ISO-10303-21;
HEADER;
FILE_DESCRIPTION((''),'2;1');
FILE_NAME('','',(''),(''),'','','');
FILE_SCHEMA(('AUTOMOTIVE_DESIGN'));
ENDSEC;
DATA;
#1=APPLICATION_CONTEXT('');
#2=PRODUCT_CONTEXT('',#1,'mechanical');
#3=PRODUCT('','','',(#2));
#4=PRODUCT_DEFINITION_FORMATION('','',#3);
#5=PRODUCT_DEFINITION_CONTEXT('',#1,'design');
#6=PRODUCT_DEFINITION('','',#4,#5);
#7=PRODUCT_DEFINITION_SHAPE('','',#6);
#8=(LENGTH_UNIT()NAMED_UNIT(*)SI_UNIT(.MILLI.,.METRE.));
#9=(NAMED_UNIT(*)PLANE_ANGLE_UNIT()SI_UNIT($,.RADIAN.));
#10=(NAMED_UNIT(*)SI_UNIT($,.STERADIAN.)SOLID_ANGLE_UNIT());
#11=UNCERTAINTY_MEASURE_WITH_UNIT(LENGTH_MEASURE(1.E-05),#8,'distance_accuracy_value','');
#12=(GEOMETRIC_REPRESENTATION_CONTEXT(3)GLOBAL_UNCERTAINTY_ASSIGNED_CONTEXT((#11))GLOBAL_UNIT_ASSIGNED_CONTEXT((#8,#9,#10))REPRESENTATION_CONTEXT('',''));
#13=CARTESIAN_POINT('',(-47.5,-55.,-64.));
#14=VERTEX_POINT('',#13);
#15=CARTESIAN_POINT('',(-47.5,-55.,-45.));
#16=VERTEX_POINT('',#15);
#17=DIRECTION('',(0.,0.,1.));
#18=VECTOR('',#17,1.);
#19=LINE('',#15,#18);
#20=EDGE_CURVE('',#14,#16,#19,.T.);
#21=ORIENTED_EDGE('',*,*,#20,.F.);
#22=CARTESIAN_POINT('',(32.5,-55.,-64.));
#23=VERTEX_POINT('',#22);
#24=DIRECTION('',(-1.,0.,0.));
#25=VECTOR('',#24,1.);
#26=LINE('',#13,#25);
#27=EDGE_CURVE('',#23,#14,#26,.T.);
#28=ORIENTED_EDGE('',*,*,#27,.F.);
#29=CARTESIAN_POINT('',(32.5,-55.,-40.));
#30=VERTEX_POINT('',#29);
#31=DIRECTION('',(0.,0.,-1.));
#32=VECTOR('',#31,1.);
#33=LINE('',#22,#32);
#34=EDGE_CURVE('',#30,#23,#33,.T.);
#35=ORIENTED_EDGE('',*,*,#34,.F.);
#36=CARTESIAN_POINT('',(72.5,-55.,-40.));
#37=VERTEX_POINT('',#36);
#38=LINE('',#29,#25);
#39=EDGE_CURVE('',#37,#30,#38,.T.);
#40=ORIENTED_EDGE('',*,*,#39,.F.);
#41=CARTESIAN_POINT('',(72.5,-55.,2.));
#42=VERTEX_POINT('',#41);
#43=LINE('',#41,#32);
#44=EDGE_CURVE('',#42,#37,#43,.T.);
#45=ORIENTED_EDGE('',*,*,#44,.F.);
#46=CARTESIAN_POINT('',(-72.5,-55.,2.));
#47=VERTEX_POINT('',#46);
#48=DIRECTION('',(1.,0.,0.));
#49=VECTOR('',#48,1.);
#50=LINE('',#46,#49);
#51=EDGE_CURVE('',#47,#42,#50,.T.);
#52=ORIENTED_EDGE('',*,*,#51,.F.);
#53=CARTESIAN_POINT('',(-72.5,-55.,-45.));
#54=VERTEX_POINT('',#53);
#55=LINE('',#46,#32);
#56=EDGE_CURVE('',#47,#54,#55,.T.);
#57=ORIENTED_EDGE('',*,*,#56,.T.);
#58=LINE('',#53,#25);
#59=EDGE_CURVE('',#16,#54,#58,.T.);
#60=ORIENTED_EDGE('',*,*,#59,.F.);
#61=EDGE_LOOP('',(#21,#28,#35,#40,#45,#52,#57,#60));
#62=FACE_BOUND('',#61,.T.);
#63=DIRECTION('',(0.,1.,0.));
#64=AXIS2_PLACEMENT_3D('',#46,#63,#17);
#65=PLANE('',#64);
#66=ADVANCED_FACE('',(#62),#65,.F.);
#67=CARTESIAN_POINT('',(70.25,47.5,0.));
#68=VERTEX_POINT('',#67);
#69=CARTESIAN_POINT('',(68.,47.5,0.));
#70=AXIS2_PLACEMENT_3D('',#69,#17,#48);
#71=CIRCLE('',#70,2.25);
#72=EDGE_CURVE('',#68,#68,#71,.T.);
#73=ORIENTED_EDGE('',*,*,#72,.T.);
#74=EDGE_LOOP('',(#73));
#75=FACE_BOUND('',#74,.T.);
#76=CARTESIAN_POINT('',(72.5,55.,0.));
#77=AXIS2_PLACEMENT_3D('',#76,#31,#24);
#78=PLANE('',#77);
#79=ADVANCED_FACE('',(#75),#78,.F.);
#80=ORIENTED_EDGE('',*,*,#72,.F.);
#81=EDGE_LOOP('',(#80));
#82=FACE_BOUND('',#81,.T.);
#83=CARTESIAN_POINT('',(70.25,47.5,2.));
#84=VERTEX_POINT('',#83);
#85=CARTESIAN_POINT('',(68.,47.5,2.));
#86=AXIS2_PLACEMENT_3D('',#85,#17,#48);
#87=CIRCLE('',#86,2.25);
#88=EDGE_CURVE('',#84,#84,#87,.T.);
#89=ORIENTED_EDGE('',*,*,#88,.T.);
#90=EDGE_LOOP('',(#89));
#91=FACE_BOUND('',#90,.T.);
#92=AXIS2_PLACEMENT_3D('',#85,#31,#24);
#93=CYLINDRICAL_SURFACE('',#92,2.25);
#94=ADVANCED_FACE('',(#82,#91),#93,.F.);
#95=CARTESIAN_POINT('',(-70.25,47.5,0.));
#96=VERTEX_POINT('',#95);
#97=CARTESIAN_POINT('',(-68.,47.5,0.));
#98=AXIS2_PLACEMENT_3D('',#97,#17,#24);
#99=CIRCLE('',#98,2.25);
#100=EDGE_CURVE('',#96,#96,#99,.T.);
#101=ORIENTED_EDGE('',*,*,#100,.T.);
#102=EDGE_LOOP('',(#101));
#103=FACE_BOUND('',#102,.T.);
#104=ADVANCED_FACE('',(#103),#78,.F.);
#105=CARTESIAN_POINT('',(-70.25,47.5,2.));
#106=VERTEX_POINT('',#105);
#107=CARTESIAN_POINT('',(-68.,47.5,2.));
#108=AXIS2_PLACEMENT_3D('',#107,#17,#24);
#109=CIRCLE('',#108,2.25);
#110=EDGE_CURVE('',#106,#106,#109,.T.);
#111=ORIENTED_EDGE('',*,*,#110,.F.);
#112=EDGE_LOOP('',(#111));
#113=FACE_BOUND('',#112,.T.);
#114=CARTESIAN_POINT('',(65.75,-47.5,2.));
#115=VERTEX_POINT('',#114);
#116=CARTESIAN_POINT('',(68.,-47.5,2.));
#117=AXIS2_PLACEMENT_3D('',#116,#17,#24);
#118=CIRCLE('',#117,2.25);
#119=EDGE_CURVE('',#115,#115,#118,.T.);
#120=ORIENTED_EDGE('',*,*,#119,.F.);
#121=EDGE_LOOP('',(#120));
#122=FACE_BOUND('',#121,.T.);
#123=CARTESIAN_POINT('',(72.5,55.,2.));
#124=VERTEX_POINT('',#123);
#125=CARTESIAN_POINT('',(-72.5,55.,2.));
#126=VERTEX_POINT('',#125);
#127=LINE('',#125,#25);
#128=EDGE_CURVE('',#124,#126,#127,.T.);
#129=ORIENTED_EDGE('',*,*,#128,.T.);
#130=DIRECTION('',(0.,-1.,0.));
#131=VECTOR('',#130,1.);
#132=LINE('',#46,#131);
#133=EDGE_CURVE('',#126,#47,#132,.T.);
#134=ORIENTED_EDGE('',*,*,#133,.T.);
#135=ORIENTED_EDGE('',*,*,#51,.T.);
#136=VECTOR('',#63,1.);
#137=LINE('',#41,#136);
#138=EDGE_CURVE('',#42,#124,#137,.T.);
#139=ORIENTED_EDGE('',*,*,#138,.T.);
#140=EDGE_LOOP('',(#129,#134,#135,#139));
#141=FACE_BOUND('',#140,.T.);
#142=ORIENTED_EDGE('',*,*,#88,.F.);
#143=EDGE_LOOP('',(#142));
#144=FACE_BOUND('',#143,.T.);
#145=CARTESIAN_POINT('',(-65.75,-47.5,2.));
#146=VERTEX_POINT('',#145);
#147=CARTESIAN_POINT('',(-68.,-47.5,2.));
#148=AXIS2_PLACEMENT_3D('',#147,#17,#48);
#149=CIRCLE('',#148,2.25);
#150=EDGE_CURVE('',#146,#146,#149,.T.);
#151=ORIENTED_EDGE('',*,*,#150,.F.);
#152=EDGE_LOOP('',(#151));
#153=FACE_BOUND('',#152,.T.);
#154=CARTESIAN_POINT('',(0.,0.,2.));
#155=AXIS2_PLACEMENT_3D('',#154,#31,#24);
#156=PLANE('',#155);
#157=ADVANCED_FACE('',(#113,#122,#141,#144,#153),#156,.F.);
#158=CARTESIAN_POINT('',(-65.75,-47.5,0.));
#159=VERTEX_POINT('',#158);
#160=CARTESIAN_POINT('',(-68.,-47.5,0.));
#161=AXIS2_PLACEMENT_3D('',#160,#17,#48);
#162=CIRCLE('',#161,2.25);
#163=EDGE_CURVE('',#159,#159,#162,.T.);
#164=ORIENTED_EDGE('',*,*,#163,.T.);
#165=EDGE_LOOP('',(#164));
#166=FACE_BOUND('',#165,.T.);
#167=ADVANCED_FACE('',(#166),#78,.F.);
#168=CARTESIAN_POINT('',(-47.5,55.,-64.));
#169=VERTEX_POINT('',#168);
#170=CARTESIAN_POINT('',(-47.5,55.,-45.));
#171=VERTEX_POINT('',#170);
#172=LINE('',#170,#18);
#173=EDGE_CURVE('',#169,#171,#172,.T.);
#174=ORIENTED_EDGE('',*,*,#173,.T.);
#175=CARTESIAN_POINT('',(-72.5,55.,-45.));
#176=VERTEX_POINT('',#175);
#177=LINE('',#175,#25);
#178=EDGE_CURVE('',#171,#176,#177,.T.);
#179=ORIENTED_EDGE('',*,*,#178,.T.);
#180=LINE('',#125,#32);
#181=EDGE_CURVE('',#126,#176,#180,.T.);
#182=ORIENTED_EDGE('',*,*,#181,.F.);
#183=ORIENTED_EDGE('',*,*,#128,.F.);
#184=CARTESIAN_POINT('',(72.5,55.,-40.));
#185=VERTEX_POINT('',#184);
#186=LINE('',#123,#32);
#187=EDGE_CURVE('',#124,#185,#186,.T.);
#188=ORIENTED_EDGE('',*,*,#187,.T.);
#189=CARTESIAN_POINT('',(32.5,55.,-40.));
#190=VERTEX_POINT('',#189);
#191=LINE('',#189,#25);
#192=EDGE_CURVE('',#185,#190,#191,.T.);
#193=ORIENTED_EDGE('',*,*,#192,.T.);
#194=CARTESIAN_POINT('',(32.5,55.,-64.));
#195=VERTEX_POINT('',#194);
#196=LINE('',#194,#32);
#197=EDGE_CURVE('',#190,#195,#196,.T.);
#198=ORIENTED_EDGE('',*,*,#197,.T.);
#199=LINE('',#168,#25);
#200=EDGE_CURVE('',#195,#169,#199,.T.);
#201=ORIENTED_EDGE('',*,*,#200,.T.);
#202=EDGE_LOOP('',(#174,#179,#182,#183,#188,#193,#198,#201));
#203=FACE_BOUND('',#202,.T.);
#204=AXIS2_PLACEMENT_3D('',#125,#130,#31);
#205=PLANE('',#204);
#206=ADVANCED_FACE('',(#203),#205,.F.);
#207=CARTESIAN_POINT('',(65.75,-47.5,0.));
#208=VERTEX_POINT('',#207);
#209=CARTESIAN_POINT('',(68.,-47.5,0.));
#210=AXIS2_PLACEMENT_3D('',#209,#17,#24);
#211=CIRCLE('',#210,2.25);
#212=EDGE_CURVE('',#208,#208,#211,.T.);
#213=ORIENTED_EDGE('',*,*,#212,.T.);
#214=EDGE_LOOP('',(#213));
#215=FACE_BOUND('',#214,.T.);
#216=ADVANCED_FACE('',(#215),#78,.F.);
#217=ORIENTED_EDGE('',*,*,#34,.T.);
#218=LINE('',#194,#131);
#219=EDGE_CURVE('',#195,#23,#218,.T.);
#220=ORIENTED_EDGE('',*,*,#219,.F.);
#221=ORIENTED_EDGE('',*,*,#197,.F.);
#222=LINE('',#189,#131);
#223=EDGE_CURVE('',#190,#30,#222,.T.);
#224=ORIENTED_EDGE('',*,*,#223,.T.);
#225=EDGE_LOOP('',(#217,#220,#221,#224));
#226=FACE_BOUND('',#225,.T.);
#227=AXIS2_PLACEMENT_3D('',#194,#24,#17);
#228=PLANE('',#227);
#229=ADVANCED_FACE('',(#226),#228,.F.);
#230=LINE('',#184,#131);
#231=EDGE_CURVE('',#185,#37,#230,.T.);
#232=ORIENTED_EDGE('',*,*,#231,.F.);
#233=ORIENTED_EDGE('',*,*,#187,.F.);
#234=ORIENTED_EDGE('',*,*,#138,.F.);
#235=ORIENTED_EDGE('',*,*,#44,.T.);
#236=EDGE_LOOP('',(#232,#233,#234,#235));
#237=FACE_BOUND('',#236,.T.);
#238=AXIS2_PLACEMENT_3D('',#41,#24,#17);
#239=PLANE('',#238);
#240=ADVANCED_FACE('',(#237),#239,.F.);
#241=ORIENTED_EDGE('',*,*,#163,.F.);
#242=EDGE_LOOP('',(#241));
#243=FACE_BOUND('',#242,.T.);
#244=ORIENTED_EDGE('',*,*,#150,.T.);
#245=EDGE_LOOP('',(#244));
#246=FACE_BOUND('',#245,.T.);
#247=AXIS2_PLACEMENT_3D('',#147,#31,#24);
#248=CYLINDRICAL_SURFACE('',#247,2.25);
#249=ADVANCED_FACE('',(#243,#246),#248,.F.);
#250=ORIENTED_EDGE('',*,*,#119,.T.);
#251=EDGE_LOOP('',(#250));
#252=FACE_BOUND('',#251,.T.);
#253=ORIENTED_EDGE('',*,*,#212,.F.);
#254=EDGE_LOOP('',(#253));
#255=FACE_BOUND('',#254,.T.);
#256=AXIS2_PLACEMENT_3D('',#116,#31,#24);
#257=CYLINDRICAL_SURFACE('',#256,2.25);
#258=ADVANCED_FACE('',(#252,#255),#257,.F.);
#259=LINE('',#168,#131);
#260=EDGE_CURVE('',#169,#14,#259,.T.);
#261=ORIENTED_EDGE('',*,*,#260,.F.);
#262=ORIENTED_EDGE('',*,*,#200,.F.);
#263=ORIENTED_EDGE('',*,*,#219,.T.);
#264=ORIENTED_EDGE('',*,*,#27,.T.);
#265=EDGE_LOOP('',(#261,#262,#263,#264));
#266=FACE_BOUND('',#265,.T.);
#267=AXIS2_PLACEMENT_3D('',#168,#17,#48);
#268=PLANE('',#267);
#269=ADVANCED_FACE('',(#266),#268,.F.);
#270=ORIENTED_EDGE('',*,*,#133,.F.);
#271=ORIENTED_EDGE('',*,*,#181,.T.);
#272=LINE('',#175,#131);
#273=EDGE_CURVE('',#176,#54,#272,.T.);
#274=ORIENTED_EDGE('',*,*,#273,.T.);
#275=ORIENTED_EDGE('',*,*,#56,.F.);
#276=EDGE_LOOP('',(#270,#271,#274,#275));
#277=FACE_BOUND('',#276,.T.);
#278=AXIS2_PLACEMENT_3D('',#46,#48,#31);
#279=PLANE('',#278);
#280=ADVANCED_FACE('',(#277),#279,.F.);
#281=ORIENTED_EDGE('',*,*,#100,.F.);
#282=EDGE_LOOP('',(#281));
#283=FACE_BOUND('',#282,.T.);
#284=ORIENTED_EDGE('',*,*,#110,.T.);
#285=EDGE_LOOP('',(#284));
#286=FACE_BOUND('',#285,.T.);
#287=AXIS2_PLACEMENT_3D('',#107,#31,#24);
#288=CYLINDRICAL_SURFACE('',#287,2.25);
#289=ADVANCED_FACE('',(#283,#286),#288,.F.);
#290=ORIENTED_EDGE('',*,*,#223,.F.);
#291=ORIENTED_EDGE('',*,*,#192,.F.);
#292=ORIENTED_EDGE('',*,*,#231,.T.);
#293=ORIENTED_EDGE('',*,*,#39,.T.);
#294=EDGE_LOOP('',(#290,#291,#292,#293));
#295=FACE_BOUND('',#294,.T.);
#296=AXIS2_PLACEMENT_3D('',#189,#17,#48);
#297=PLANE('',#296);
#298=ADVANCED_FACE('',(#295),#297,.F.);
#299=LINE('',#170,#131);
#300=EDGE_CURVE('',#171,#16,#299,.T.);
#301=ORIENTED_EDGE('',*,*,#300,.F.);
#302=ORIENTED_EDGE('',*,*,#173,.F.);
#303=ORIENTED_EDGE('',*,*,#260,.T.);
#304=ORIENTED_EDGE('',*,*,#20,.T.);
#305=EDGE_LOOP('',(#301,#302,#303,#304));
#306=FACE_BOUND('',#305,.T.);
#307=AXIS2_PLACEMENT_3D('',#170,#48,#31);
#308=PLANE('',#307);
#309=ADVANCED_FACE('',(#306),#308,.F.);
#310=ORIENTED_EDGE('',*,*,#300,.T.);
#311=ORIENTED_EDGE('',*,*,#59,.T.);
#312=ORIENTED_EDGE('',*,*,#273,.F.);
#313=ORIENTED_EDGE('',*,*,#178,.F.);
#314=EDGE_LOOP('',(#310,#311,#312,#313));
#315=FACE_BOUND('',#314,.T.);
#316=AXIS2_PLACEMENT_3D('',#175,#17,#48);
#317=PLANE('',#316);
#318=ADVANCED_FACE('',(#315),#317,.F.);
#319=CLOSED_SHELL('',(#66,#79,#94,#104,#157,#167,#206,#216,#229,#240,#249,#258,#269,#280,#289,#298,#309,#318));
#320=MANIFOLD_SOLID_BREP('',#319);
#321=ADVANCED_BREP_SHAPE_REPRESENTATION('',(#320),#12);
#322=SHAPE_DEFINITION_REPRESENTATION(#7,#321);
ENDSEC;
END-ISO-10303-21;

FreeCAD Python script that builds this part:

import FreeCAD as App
import Part
import Sketcher

doc = App.newDocument("Part")
params = doc.addObject("Spreadsheet::Sheet", "Params")
for row, (alias, value) in enumerate([
    ("sketch1_diameter", "4.5 mm"),
    ("sketch1_width", "145 mm"),
    ("sketch1_height", "110 mm"),
    ("pad1_length", "2 mm"),
    ("sketch2_width", "145 mm"),
    ("sketch2_width2", "40 mm"),
    ("sketch2_width3", "80 mm"),
    ("sketch2_height", "45 mm"),
    ("sketch2_height2", "24 mm"),
    ("pad2_length", "55 mm"),
    ("pad2_length2", "55 mm"),
], start=1):
    params.set(f"A{row}", alias)
    params.set(f"B{row}", "=" + value)
    params.setAlias(f"B{row}", alias)

body = doc.addObject("PartDesign::Body", "Body")

# Sketch on XY plane
sketch1 = doc.addObject("Sketcher::SketchObject", "Sketch")
body.addObject(sketch1)
sketch1.AttachmentSupport = (doc.XY_Plane, [""])
sketch1.MapMode = "FlatFace"
sketch1.addGeometry([
    Part.LineSegment(App.Vector(-72.5, 55, 0), App.Vector(-72.5, -55, 0)),  # 0
    Part.LineSegment(App.Vector(-72.5, -55, 0), App.Vector(72.5, -55, 0)),  # 1
    Part.LineSegment(App.Vector(72.5, -55, 0), App.Vector(72.5, 55, 0)),  # 2
    Part.LineSegment(App.Vector(72.5, 55, 0), App.Vector(-72.5, 55, 0)),  # 3
    Part.Circle(App.Vector(-68, -47.5, 0), App.Vector(0, 0, 1), 2.25),  # 4
    Part.Circle(App.Vector(68, -47.5, 0), App.Vector(0, 0, 1), 2.25),  # 5
    Part.Circle(App.Vector(-68, 47.5, 0), App.Vector(0, 0, 1), 2.25),  # 6
    Part.Circle(App.Vector(68, 47.5, 0), App.Vector(0, 0, 1), 2.25),  # 7
], False)
sketch1.addConstraint([
    Sketcher.Constraint("Coincident", 0, 2, 1, 1),
    Sketcher.Constraint("Coincident", 1, 2, 2, 1),
    Sketcher.Constraint("Coincident", 2, 2, 3, 1),
    Sketcher.Constraint("Coincident", 3, 2, 0, 1),
    Sketcher.Constraint("Vertical", 0),
    Sketcher.Constraint("Horizontal", 1),
    Sketcher.Constraint("Vertical", 2),
    Sketcher.Constraint("Horizontal", 3),
    Sketcher.Constraint("Equal", 4, 5),
    Sketcher.Constraint("Equal", 5, 6),
    Sketcher.Constraint("Equal", 6, 7),
    Sketcher.Constraint("Symmetric", 5, 3, 6, 3, -1, 1),
    Sketcher.Constraint("Symmetric", 4, 3, 7, 3, -1, 1),
    Sketcher.Constraint("Symmetric", 0, 2, 2, 2, -1, 1),
    Sketcher.Constraint("Symmetric", 4, 3, 5, 3, -2),
    Sketcher.Constraint("Diameter", 4, 4.5),
    Sketcher.Constraint("DistanceX", 1, 1, 1, 2, 145.0),
    Sketcher.Constraint("DistanceY", 0, 2, 0, 1, 110.0),
    Sketcher.Constraint("DistanceX", 4, 3, -1, 1, 68.0),
    Sketcher.Constraint("DistanceY", 4, 3, 6, 3, 95.0),
])
sketch1.setExpression("Constraints[15]", "Params.sketch1_diameter")
sketch1.setExpression("Constraints[16]", "Params.sketch1_width")
sketch1.setExpression("Constraints[17]", "Params.sketch1_height")
pad1 = doc.addObject("PartDesign::Pad", "Pad")
body.addObject(pad1)
pad1.Profile = sketch1
pad1.setExpression("Length", "Params.pad1_length")

# Sketch on XZ plane
sketch2 = doc.addObject("Sketcher::SketchObject", "Sketch001")
body.addObject(sketch2)
sketch2.AttachmentSupport = (doc.XZ_Plane, [""])
sketch2.MapMode = "FlatFace"
sketch2.addGeometry([
    Part.LineSegment(App.Vector(-72.5, -45, 0), App.Vector(-72.5, 0, 0)),  # 0
    Part.LineSegment(App.Vector(-72.5, 0, 0), App.Vector(72.5, 0, 0)),  # 1
    Part.LineSegment(App.Vector(72.5, 0, 0), App.Vector(72.5, -40, 0)),  # 2
    Part.LineSegment(App.Vector(72.5, -40, 0), App.Vector(32.5, -40, 0)),  # 3
    Part.LineSegment(App.Vector(32.5, -40, 0), App.Vector(32.5, -64, 0)),  # 4
    Part.LineSegment(App.Vector(32.5, -64, 0), App.Vector(-47.5, -64, 0)),  # 5
    Part.LineSegment(App.Vector(-47.5, -64, 0), App.Vector(-47.5, -45, 0)),  # 6
    Part.LineSegment(App.Vector(-47.5, -45, 0), App.Vector(-72.5, -45, 0)),  # 7
], False)
sketch2.addConstraint([
    Sketcher.Constraint("Coincident", 0, 2, 1, 1),
    Sketcher.Constraint("Coincident", 1, 2, 2, 1),
    Sketcher.Constraint("Coincident", 2, 2, 3, 1),
    Sketcher.Constraint("Coincident", 3, 2, 4, 1),
    Sketcher.Constraint("Coincident", 4, 2, 5, 1),
    Sketcher.Constraint("Coincident", 5, 2, 6, 1),
    Sketcher.Constraint("Coincident", 6, 2, 7, 1),
    Sketcher.Constraint("Coincident", 7, 2, 0, 1),
    Sketcher.Constraint("Vertical", 0),
    Sketcher.Constraint("Horizontal", 1),
    Sketcher.Constraint("Vertical", 2),
    Sketcher.Constraint("Horizontal", 3),
    Sketcher.Constraint("Vertical", 4),
    Sketcher.Constraint("Horizontal", 5),
    Sketcher.Constraint("Vertical", 6),
    Sketcher.Constraint("Horizontal", 7),
    Sketcher.Constraint("Symmetric", 0, 2, 1, 2, -1, 1),
    Sketcher.Constraint("Equal", 3, 2),
    Sketcher.Constraint("DistanceX", 1, 1, 1, 2, 145.0),
    Sketcher.Constraint("DistanceX", 3, 2, 3, 1, 40.0),
    Sketcher.Constraint("DistanceX", 5, 2, 5, 1, 80.0),
    Sketcher.Constraint("DistanceY", 0, 1, 0, 2, 45.0),
    Sketcher.Constraint("DistanceY", 4, 2, 4, 1, 24.0),
])
sketch2.setExpression("Constraints[18]", "Params.sketch2_width")
sketch2.setExpression("Constraints[19]", "Params.sketch2_width2")
sketch2.setExpression("Constraints[20]", "Params.sketch2_width3")
sketch2.setExpression("Constraints[21]", "Params.sketch2_height")
sketch2.setExpression("Constraints[22]", "Params.sketch2_height2")
pad2 = doc.addObject("PartDesign::Pad", "Pad001")
body.addObject(pad2)
pad2.Profile = sketch2
pad2.Type = "TwoLengths"
pad2.setExpression("Length", "Params.pad2_length")
pad2.setExpression("Length2", "Params.pad2_length2")
pad2.Reversed = True

doc.recompute()
